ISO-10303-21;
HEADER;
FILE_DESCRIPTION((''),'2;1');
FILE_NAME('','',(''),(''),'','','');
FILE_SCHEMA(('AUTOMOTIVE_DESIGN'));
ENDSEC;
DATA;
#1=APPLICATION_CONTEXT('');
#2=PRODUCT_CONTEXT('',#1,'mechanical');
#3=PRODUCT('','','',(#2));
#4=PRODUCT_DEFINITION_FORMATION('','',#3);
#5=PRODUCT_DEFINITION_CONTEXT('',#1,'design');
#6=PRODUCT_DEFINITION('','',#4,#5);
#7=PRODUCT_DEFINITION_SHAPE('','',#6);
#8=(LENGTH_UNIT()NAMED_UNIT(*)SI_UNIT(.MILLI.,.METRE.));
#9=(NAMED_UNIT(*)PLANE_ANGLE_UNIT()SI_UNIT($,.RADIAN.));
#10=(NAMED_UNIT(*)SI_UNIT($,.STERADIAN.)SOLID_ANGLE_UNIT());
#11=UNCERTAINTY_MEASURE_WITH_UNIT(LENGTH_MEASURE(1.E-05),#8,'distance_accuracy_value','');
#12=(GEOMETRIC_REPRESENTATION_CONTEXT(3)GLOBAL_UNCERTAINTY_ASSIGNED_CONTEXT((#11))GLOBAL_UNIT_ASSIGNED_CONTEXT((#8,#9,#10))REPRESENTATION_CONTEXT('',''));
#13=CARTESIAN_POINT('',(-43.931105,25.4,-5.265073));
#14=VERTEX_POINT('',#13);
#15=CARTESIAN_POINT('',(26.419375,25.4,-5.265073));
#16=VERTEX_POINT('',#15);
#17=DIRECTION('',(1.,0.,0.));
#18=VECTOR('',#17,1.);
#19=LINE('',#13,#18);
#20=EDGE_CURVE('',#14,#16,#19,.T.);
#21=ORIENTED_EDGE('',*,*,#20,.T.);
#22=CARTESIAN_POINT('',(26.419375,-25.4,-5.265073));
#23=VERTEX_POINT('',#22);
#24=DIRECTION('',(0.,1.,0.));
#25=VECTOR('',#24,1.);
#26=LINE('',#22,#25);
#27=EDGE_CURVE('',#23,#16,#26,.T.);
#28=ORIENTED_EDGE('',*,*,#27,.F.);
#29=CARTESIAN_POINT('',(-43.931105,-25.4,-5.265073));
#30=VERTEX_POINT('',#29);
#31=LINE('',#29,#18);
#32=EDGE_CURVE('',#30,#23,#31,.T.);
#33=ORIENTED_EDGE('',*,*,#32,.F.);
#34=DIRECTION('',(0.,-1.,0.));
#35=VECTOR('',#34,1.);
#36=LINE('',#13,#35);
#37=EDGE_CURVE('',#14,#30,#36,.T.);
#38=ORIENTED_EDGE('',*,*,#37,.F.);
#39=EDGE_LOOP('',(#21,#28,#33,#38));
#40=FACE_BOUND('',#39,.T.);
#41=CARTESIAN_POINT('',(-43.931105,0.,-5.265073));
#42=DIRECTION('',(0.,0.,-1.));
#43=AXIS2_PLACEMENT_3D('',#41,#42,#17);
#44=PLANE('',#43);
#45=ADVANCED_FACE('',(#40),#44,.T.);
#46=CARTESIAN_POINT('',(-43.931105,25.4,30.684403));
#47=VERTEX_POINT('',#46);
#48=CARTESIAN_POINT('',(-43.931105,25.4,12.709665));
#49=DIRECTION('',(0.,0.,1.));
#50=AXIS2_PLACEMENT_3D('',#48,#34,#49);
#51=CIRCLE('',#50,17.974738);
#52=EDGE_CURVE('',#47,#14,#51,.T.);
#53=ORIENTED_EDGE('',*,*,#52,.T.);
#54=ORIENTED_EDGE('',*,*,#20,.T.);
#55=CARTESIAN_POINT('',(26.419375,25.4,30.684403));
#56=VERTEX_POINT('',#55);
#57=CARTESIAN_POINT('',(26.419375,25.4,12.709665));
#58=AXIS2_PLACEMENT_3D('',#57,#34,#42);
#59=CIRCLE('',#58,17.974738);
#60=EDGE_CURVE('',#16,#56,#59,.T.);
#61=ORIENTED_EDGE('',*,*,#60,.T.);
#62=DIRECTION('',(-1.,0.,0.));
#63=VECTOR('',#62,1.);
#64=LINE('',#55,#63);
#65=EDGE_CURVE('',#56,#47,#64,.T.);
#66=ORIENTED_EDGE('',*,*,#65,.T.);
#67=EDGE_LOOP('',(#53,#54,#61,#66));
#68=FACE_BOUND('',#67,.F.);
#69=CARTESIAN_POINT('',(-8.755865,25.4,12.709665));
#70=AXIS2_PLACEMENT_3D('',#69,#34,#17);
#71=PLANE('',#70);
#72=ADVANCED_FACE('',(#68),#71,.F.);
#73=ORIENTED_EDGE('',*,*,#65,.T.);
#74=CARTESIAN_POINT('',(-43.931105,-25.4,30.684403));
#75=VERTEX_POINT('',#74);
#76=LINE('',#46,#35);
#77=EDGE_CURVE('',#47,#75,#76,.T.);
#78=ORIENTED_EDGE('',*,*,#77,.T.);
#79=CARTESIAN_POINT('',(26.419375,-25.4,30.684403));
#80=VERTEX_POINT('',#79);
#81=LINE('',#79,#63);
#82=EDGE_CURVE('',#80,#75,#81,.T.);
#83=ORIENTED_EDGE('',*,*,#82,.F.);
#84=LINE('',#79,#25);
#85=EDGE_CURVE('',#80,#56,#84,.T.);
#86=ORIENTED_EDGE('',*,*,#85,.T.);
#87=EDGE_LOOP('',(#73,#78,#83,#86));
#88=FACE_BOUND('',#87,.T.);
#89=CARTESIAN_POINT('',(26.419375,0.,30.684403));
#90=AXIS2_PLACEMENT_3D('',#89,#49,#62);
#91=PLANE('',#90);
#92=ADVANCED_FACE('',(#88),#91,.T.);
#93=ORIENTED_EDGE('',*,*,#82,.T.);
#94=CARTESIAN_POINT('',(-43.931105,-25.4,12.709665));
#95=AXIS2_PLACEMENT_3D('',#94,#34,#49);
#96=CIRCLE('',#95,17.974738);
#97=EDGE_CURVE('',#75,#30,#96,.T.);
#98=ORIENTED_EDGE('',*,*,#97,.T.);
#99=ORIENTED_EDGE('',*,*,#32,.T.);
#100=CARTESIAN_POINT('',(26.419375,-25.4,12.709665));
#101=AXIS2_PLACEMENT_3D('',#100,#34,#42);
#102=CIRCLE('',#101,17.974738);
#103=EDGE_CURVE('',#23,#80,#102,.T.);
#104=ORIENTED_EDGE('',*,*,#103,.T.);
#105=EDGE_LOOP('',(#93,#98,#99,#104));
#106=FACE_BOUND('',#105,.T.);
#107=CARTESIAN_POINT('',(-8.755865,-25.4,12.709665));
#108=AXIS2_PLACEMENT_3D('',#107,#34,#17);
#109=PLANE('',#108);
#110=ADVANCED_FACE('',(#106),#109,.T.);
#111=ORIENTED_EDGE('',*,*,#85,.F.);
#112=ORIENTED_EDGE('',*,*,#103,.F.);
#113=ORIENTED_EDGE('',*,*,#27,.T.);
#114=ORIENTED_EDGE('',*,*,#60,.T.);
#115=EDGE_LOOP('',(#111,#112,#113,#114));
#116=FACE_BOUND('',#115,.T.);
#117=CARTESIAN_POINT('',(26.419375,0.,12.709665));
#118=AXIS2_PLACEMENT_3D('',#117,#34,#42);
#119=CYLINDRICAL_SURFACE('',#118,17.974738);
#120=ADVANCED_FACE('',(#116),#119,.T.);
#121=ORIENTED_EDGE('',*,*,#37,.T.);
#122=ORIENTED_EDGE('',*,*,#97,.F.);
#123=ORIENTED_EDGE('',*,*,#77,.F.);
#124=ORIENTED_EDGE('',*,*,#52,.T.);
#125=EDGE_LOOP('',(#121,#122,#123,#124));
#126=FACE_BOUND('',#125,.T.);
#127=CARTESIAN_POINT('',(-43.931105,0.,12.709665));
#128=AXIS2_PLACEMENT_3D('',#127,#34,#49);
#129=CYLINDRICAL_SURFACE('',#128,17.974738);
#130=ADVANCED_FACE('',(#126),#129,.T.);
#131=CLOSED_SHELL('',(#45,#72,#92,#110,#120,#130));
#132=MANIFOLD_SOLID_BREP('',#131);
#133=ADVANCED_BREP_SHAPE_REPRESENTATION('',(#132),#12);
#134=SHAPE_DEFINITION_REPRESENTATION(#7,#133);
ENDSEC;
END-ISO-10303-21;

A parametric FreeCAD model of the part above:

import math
import FreeCAD as App
import Part
import Sketcher

V = App.Vector
Q = App.Units.Quantity

doc = App.newDocument("Part")
body = doc.addObject("PartDesign::Body", "Body")

sketch1 = body.newObject("Sketcher::SketchObject", "Sketch")
sketch1.AttachmentSupport = (doc.getObject("XZ_Plane"), [""])
sketch1.MapMode = "FlatFace"
sketch1.addGeometry([
    Part.LineSegment(V(26, 31, 0), V(-44, 31, 0)),
    Part.ArcOfCircle(Part.Circle(V(-44, 13, 0), V(0, 0, 1), 18), math.radians(90), math.radians(270)),
    Part.LineSegment(V(-44, -5, 0), V(26, -5, 0)),
    Part.ArcOfCircle(Part.Circle(V(26, 13, 0), V(0, 0, 1), 18), math.radians(-90), math.radians(90)),
], False)
sketch1.addConstraint([
    Sketcher.Constraint("Tangent", 0, 2, 1, 1),
    Sketcher.Constraint("Tangent", 1, 2, 2, 1),
    Sketcher.Constraint("Tangent", 2, 2, 3, 1),
    Sketcher.Constraint("Tangent", 3, 2, 0, 1),
    Sketcher.Constraint("Horizontal", 0),
    Sketcher.Constraint("Horizontal", 2),
    Sketcher.Constraint("Radius", 1, Q("17.974738 mm")),
    Sketcher.Constraint("DistanceX", 0, 2, 0, 1, Q("70.35048 mm")),
    Sketcher.Constraint("DistanceX", 1, 3, -1, 1, Q("43.931105 mm")),
    Sketcher.Constraint("DistanceY", -1, 1, 1, 3, Q("12.709665 mm")),
])
pad1 = body.newObject("PartDesign::Pad", "Pad")
pad1.Profile = sketch1
pad1.Type = "TwoLengths"
pad1.Length = Q("1 in")
pad1.Length2 = Q("1 in")

doc.recompute()
